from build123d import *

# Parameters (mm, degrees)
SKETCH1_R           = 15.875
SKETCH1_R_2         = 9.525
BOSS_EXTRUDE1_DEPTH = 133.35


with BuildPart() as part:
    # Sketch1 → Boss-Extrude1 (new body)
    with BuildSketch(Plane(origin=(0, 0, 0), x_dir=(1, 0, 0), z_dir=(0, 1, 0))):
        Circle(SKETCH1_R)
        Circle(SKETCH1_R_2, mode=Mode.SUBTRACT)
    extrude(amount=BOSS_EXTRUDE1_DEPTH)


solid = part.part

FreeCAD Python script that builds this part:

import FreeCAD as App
import Part
import Sketcher
from FreeCAD import Vector
Q = App.Units.Quantity

doc = App.newDocument("Part")
body = doc.addObject("PartDesign::Body", "Body")

# Sketch on XZ plane
sketch1 = body.newObject("Sketcher::SketchObject", "Sketch")
sketch1.AttachmentSupport = (doc.getObject("XZ_Plane"), [""])
sketch1.MapMode = "FlatFace"
sketch1.addGeometry(Part.Circle(Vector(0, 0, 0), Vector(0, 0, 1), 16), False)
sketch1.addGeometry(Part.Circle(Vector(0, 0, 0), Vector(0, 0, 1), 10), False)
sketch1.addConstraint(Sketcher.Constraint("Coincident", 0, 3, -1, 1))
sketch1.addConstraint(Sketcher.Constraint("Coincident", 1, 3, -1, 1))
sketch1.addConstraint(Sketcher.Constraint("Diameter", 0, Q("1.25 in")))
sketch1.addConstraint(Sketcher.Constraint("Diameter", 1, Q("0.75 in")))
pad1 = body.newObject("PartDesign::Pad", "Pad")
pad1.Profile = sketch1
pad1.Length = Q("5.25 in")
pad1.Reversed = True

doc.recompute()
